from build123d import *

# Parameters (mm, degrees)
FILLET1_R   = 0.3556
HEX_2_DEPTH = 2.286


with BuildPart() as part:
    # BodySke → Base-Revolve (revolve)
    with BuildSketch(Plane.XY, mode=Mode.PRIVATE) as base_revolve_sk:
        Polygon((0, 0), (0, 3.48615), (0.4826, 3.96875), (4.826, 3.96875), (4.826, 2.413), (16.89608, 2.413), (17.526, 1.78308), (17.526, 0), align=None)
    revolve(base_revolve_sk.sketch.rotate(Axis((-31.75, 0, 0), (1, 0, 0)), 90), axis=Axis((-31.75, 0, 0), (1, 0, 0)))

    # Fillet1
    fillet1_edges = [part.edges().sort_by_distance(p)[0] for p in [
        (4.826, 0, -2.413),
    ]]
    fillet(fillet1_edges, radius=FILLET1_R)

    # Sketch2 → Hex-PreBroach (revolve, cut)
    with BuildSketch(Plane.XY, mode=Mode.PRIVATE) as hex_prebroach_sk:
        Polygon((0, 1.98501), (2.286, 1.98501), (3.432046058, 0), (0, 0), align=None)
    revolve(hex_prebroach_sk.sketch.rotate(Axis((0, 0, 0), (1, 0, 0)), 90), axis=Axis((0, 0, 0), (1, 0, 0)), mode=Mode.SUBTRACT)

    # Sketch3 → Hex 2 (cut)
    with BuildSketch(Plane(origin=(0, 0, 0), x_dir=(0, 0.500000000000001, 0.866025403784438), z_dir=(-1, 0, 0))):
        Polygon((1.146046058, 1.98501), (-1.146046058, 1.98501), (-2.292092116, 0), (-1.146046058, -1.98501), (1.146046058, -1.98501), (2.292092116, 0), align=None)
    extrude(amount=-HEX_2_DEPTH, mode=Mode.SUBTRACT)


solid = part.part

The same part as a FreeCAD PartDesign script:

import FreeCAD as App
import Part
import Sketcher

V = App.Vector
Q = App.Units.Quantity


def edges_at(feature, points):
    """Names of the edges that pass closest to the given points."""
    edges = feature.Shape.Edges
    near = lambda p: min(range(len(edges)), key=lambda i: edges[i].distToShape(Part.Vertex(*p))[0])
    return sorted({f"Edge{near(p) + 1}" for p in points})

doc = App.newDocument("Part")
params = doc.addObject("Spreadsheet::Sheet", "Params")
for row, (alias, value) in enumerate([
    ("sketch1_width", "0.69 in"),
    ("sketch1_width2", "0.171 in"),
    ("revolution_angle", "360 deg"),
    ("fillet_radius", "0.014 in"),
    ("sketch2_width", "0.09 in"),
    ("groove_angle", "360 deg"),
    ("pocket1_length", "0.09 in"),
], start=1):
    params.set(f"A{row}", alias)
    params.set(f"B{row}", "=" + value)
    params.setAlias(f"B{row}", alias)

body = doc.addObject("PartDesign::Body", "Body")

sketch1 = body.newObject("Sketcher::SketchObject", "Sketch")
sketch1.AttachmentSupport = (doc.getObject("XY_Plane"), [""])
sketch1.MapMode = "FlatFace"
sketch1.addGeometry([
    Part.LineSegment(V(0, 3.48615, 0), V(0, 0, 0)),
    Part.LineSegment(V(0, 0, 0), V(17.526, 0, 0)),
    Part.LineSegment(V(17.526, 0, 0), V(17.526, 1.78308, 0)),
    Part.LineSegment(V(17.526, 1.78308, 0), V(16.89608, 2.413, 0)),
    Part.LineSegment(V(16.89608, 2.413, 0), V(4.826, 2.413, 0)),
    Part.LineSegment(V(4.826, 2.413, 0), V(4.826, 3.96875, 0)),
    Part.LineSegment(V(4.826, 3.96875, 0), V(0.4826, 3.96875, 0)),
    Part.LineSegment(V(0.4826, 3.96875, 0), V(0, 3.48615, 0)),
], False)
sketch1.addConstraint([
    Sketcher.Constraint("Coincident", 0, 2, 1, 1),
    Sketcher.Constraint("Coincident", 1, 2, 2, 1),
    Sketcher.Constraint("Coincident", 2, 2, 3, 1),
    Sketcher.Constraint("Coincident", 3, 2, 4, 1),
    Sketcher.Constraint("Coincident", 4, 2, 5, 1),
    Sketcher.Constraint("Coincident", 5, 2, 6, 1),
    Sketcher.Constraint("Coincident", 6, 2, 7, 1),
    Sketcher.Constraint("Coincident", 7, 2, 0, 1),
    Sketcher.Constraint("Vertical", 0),
    Sketcher.Constraint("Horizontal", 1),
    Sketcher.Constraint("Vertical", 2),
    Sketcher.Constraint("Horizontal", 4),
    Sketcher.Constraint("Vertical", 5),
    Sketcher.Constraint("Horizontal", 6),
    Sketcher.Constraint("Coincident", 0, 2, -1, 1),
    Sketcher.Constraint("Perpendicular", 3, 7),
    Sketcher.Constraint("Angle", 3, Q("135 deg")),
    Sketcher.Constraint("DistanceX", 1, 1, 1, 2, Q("0.69 in")),
    Sketcher.Constraint("DistanceX", 4, 2, 2, 2, Q("0.5 in")),
    Sketcher.Constraint("DistanceX", 6, 2, 6, 1, Q("0.171 in")),
    Sketcher.Constraint("DistanceX", 4, 2, 4, 1, Q("0.4752 in")),
    Sketcher.Constraint("DistanceY", 2, 1, 2, 2, Q("0.0702 in")),
    Sketcher.Constraint("DistanceY", -1, 1, 5, 2, Q("0.15625 in")),
])
sketch1.setExpression("Constraints[17]", "Params.sketch1_width")
sketch1.setExpression("Constraints[19]", "Params.sketch1_width2")
revolution = body.newObject("PartDesign::Revolution", "Revolution")
revolution.Profile = sketch1
revolution.ReferenceAxis = (sketch1, ["H_Axis"])
revolution.setExpression("Angle", "Params.revolution_angle")
doc.recompute()

fillet = body.newObject("PartDesign::Fillet", "Fillet")
fillet.Base = (revolution, edges_at(revolution, [(4.826, 0, -2.413)]))
fillet.setExpression("Radius", "Params.fillet_radius")

sketch2 = body.newObject("Sketcher::SketchObject", "Sketch001")
sketch2.AttachmentSupport = (doc.getObject("XY_Plane"), [""])
sketch2.MapMode = "FlatFace"
sketch2.addGeometry([
    Part.LineSegment(V(2.286, 1.98501, 0), V(0, 1.98501, 0)),
    Part.LineSegment(V(0, 1.98501, 0), V(0, 0, 0)),
    Part.LineSegment(V(0, 0, 0), V(3.432046, 0, 0)),
    Part.LineSegment(V(3.432046, 0, 0), V(2.286, 1.98501, 0)),
], False)
sketch2.addConstraint([
    Sketcher.Constraint("Coincident", 0, 2, 1, 1),
    Sketcher.Constraint("Coincident", 1, 2, 2, 1),
    Sketcher.Constraint("Coincident", 2, 2, 3, 1),
    Sketcher.Constraint("Coincident", 3, 2, 0, 1),
    Sketcher.Constraint("Horizontal", 0),
    Sketcher.Constraint("Vertical", 1),
    Sketcher.Constraint("Horizontal", 2),
    Sketcher.Constraint("Coincident", 1, 2, -1, 1),
    Sketcher.Constraint("Angle", 3, Q("120 deg")),
    Sketcher.Constraint("DistanceX", 0, 2, 0, 1, Q("0.09 in")),
    Sketcher.Constraint("DistanceY", 1, 2, 1, 1, Q("1.98501 mm")),
])
sketch2.setExpression("Constraints[9]", "Params.sketch2_width")
groove = body.newObject("PartDesign::Groove", "Groove")
groove.Profile = sketch2
groove.ReferenceAxis = (sketch2, ["H_Axis"])
groove.setExpression("Angle", "Params.groove_angle")

sketch3 = body.newObject("Sketcher::SketchObject", "Sketch002")
sketch3.AttachmentSupport = (doc.getObject("YZ_Plane"), [""])
sketch3.MapMode = "FlatFace"
sketch3.addGeometry([
    Part.LineSegment(V(2.292092, 0, 0), V(1.146046, -1.98501, 0)),
    Part.LineSegment(V(1.146046, -1.98501, 0), V(-1.146046, -1.98501, 0)),
    Part.LineSegment(V(-1.146046, -1.98501, 0), V(-2.292092, 0, 0)),
    Part.LineSegment(V(-2.292092, 0, 0), V(-1.146046, 1.98501, 0)),
    Part.LineSegment(V(-1.146046, 1.98501, 0), V(1.146046, 1.98501, 0)),
    Part.LineSegment(V(1.146046, 1.98501, 0), V(2.292092, 0, 0)),
], False)
sketch3.addConstraint([
    Sketcher.Constraint("Coincident", 0, 2, 1, 1),
    Sketcher.Constraint("Coincident", 1, 2, 2, 1),
    Sketcher.Constraint("Coincident", 2, 2, 3, 1),
    Sketcher.Constraint("Coincident", 3, 2, 4, 1),
    Sketcher.Constraint("Coincident", 4, 2, 5, 1),
    Sketcher.Constraint("Coincident", 5, 2, 0, 1),
    Sketcher.Constraint("Horizontal", 1),
    Sketcher.Constraint("Horizontal", 4),
    Sketcher.Constraint("Symmetric", 0, 2, 3, 2, -1, 1),
    Sketcher.Constraint("Symmetric", 2, 2, 5, 2, -1, 1),
    Sketcher.Constraint("PointOnObject", 2, 2, -1),
    Sketcher.Constraint("Parallel", 2, 5),
    Sketcher.Constraint("Vertical", 1, 2, 3, 2),
    Sketcher.Constraint("Angle", 0, Q("-120 deg")),
    Sketcher.Constraint("DistanceY", 1, 2, 3, 2, Q("0.1563 in")),
    Sketcher.Constraint("DistanceX", 1, 2, 1, 1, Q("2.292092 mm")),
])
pocket1 = body.newObject("PartDesign::Pocket", "Pocket")
pocket1.Profile = sketch3
pocket1.setExpression("Length", "Params.pocket1_length")
pocket1.Reversed = True

doc.recompute()
